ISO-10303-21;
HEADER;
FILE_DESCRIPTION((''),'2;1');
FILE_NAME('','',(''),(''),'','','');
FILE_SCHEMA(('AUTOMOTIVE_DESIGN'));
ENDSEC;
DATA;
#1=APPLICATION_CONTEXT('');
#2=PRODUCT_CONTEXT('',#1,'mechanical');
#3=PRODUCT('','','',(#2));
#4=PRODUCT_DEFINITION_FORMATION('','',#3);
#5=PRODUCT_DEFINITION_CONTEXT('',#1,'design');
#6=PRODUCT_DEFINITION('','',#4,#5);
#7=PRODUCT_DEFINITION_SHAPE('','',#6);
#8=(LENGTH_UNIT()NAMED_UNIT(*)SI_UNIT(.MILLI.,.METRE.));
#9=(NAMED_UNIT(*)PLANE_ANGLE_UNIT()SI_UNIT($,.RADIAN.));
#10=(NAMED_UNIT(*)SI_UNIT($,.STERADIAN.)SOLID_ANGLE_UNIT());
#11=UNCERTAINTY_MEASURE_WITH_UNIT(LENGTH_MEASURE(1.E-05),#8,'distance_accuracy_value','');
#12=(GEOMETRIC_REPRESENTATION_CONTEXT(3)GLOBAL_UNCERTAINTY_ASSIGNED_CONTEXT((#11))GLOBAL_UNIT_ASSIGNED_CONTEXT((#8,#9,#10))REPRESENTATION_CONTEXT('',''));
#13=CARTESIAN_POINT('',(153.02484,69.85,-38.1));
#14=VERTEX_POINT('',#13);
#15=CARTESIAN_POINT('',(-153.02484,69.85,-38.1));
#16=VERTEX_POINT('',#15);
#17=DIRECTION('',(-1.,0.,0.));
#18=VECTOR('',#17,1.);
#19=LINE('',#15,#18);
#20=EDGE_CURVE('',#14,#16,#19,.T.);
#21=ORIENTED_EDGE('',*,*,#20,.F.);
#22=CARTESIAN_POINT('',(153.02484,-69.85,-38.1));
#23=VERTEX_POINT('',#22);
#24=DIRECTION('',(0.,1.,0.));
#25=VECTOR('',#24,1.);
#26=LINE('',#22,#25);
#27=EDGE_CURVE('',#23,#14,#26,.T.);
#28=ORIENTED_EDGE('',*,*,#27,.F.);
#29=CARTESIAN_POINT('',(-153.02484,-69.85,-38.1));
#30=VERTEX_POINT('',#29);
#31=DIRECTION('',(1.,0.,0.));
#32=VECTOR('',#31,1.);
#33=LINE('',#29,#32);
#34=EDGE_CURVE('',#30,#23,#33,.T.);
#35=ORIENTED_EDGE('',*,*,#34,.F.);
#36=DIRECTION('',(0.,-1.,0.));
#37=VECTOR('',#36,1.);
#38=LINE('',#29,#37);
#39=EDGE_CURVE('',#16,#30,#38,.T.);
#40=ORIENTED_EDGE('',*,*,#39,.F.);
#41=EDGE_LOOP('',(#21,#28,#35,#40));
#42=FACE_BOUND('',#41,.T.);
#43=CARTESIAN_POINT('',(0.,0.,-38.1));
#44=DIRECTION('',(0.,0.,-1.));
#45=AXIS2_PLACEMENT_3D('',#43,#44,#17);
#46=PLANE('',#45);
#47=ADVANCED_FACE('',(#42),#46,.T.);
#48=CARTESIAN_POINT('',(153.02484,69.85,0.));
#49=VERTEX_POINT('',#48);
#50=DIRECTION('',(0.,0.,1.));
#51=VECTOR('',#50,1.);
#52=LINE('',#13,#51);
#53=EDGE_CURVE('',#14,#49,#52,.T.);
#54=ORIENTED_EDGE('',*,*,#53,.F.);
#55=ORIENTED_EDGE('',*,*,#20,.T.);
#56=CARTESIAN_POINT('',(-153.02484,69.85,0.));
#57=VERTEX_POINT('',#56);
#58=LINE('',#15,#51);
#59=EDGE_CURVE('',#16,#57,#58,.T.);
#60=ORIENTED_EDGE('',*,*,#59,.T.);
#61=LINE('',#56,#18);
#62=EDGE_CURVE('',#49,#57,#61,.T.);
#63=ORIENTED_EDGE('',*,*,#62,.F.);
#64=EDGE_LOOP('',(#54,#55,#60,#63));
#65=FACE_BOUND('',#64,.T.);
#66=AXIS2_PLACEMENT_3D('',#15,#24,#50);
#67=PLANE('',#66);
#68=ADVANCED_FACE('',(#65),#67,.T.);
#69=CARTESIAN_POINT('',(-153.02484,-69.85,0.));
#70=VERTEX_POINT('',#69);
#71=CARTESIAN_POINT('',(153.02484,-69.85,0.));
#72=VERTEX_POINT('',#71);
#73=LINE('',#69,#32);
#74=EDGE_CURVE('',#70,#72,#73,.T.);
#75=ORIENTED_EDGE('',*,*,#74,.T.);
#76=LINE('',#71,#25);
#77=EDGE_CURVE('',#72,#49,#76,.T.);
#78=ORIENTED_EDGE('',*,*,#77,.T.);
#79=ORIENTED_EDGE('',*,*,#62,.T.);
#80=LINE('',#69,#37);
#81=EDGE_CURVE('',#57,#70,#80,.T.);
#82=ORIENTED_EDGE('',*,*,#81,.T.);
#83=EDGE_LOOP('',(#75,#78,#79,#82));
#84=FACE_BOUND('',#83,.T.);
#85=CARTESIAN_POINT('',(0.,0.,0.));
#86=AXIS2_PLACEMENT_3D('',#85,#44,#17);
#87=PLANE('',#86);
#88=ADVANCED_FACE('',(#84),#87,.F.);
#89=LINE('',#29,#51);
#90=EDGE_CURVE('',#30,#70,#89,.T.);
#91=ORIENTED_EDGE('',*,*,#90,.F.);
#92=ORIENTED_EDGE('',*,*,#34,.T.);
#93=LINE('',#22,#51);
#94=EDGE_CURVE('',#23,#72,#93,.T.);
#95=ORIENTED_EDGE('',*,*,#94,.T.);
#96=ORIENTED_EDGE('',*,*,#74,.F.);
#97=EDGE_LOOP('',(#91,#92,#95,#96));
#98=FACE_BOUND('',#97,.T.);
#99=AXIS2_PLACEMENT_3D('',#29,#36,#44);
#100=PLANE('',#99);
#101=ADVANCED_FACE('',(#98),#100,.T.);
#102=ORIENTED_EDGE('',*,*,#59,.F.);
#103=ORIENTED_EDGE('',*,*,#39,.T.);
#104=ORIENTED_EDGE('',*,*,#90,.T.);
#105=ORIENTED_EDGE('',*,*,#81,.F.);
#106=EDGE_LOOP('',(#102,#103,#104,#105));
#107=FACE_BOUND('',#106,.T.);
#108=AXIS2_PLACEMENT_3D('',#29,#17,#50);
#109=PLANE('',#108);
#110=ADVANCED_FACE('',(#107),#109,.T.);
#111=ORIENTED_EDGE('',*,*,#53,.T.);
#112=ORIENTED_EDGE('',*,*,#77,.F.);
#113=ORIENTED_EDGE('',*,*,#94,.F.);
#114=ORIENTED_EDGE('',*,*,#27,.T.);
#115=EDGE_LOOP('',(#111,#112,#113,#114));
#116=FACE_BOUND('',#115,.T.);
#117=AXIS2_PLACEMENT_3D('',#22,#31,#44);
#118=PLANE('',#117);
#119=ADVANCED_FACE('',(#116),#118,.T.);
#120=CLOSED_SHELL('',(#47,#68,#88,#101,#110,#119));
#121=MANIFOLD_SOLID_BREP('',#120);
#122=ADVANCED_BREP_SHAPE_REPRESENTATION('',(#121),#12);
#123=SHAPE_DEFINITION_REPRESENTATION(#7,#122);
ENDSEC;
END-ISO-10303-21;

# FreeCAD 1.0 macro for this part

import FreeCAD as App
import Part
import Sketcher
from FreeCAD import Vector
Q = App.Units.Quantity


def add_polygon(sketch, points):
    """Adds a closed chain of lines whose ends are joined by coincident constraints."""
    first, n = sketch.GeometryCount, len(points)
    for a, b in zip(points, points[1:] + points[:1]):
        sketch.addGeometry(Part.LineSegment(App.Vector(*a, 0), App.Vector(*b, 0)), False)
    for i in range(n):
        sketch.addConstraint(Sketcher.Constraint("Coincident", first + i, 2, first + (i + 1) % n, 1))

doc = App.newDocument("Part")
body = doc.addObject("PartDesign::Body", "Body")

sketch1 = doc.addObject("Sketcher::SketchObject", "Sketch")
body.addObject(sketch1)
sketch1.AttachmentSupport = (doc.XY_Plane, [""])
sketch1.MapMode = "FlatFace"
add_polygon(sketch1, [(-153.02484, 69.85), (-153.02484, -69.85), (153.02484, -69.85), (153.02484, 69.85)])
sketch1.addConstraint(Sketcher.Constraint("Vertical", 0))
sketch1.addConstraint(Sketcher.Constraint("Horizontal", 1))
sketch1.addConstraint(Sketcher.Constraint("Vertical", 2))
sketch1.addConstraint(Sketcher.Constraint("Horizontal", 3))
sketch1.addConstraint(Sketcher.Constraint("Symmetric", 0, 2, 2, 2, -1, 1))
sketch1.addConstraint(Sketcher.Constraint("DistanceY", 0, 2, 0, 1, Q("5.5 in")))
sketch1.addConstraint(Sketcher.Constraint("DistanceX", 1, 1, 1, 2, Q("12.0492 in")))
pad1 = doc.addObject("PartDesign::Pad", "Pad")
body.addObject(pad1)
pad1.Profile = sketch1
pad1.Length = Q("1.5 in")
pad1.Reversed = True

doc.recompute()
